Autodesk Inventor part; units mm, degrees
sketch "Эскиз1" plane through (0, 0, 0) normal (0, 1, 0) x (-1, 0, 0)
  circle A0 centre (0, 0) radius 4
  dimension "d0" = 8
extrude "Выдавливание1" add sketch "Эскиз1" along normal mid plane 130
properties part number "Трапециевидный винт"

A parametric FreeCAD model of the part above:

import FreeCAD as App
import Part
import Sketcher
from FreeCAD import Vector
Q = App.Units.Quantity

doc = App.newDocument("Part")
body = doc.addObject("PartDesign::Body", "Body")

# Sketch on XZ plane
sketch1 = body.newObject("Sketcher::SketchObject", "Sketch")
sketch1.AttachmentSupport = (doc.getObject("XZ_Plane"), [""])
sketch1.MapMode = "FlatFace"
sketch1.addGeometry(Part.Circle(Vector(0, 0, 0), Vector(0, 0, 1), 4), False)
sketch1.addConstraint(Sketcher.Constraint("Coincident", 0, 3, -1, 1))
sketch1.addConstraint(Sketcher.Constraint("Diameter", 0, Q("8 mm")))
pad1 = body.newObject("PartDesign::Pad", "Pad")
pad1.Profile = sketch1
pad1.Length = 130
pad1.Midplane = True

doc.recompute()
